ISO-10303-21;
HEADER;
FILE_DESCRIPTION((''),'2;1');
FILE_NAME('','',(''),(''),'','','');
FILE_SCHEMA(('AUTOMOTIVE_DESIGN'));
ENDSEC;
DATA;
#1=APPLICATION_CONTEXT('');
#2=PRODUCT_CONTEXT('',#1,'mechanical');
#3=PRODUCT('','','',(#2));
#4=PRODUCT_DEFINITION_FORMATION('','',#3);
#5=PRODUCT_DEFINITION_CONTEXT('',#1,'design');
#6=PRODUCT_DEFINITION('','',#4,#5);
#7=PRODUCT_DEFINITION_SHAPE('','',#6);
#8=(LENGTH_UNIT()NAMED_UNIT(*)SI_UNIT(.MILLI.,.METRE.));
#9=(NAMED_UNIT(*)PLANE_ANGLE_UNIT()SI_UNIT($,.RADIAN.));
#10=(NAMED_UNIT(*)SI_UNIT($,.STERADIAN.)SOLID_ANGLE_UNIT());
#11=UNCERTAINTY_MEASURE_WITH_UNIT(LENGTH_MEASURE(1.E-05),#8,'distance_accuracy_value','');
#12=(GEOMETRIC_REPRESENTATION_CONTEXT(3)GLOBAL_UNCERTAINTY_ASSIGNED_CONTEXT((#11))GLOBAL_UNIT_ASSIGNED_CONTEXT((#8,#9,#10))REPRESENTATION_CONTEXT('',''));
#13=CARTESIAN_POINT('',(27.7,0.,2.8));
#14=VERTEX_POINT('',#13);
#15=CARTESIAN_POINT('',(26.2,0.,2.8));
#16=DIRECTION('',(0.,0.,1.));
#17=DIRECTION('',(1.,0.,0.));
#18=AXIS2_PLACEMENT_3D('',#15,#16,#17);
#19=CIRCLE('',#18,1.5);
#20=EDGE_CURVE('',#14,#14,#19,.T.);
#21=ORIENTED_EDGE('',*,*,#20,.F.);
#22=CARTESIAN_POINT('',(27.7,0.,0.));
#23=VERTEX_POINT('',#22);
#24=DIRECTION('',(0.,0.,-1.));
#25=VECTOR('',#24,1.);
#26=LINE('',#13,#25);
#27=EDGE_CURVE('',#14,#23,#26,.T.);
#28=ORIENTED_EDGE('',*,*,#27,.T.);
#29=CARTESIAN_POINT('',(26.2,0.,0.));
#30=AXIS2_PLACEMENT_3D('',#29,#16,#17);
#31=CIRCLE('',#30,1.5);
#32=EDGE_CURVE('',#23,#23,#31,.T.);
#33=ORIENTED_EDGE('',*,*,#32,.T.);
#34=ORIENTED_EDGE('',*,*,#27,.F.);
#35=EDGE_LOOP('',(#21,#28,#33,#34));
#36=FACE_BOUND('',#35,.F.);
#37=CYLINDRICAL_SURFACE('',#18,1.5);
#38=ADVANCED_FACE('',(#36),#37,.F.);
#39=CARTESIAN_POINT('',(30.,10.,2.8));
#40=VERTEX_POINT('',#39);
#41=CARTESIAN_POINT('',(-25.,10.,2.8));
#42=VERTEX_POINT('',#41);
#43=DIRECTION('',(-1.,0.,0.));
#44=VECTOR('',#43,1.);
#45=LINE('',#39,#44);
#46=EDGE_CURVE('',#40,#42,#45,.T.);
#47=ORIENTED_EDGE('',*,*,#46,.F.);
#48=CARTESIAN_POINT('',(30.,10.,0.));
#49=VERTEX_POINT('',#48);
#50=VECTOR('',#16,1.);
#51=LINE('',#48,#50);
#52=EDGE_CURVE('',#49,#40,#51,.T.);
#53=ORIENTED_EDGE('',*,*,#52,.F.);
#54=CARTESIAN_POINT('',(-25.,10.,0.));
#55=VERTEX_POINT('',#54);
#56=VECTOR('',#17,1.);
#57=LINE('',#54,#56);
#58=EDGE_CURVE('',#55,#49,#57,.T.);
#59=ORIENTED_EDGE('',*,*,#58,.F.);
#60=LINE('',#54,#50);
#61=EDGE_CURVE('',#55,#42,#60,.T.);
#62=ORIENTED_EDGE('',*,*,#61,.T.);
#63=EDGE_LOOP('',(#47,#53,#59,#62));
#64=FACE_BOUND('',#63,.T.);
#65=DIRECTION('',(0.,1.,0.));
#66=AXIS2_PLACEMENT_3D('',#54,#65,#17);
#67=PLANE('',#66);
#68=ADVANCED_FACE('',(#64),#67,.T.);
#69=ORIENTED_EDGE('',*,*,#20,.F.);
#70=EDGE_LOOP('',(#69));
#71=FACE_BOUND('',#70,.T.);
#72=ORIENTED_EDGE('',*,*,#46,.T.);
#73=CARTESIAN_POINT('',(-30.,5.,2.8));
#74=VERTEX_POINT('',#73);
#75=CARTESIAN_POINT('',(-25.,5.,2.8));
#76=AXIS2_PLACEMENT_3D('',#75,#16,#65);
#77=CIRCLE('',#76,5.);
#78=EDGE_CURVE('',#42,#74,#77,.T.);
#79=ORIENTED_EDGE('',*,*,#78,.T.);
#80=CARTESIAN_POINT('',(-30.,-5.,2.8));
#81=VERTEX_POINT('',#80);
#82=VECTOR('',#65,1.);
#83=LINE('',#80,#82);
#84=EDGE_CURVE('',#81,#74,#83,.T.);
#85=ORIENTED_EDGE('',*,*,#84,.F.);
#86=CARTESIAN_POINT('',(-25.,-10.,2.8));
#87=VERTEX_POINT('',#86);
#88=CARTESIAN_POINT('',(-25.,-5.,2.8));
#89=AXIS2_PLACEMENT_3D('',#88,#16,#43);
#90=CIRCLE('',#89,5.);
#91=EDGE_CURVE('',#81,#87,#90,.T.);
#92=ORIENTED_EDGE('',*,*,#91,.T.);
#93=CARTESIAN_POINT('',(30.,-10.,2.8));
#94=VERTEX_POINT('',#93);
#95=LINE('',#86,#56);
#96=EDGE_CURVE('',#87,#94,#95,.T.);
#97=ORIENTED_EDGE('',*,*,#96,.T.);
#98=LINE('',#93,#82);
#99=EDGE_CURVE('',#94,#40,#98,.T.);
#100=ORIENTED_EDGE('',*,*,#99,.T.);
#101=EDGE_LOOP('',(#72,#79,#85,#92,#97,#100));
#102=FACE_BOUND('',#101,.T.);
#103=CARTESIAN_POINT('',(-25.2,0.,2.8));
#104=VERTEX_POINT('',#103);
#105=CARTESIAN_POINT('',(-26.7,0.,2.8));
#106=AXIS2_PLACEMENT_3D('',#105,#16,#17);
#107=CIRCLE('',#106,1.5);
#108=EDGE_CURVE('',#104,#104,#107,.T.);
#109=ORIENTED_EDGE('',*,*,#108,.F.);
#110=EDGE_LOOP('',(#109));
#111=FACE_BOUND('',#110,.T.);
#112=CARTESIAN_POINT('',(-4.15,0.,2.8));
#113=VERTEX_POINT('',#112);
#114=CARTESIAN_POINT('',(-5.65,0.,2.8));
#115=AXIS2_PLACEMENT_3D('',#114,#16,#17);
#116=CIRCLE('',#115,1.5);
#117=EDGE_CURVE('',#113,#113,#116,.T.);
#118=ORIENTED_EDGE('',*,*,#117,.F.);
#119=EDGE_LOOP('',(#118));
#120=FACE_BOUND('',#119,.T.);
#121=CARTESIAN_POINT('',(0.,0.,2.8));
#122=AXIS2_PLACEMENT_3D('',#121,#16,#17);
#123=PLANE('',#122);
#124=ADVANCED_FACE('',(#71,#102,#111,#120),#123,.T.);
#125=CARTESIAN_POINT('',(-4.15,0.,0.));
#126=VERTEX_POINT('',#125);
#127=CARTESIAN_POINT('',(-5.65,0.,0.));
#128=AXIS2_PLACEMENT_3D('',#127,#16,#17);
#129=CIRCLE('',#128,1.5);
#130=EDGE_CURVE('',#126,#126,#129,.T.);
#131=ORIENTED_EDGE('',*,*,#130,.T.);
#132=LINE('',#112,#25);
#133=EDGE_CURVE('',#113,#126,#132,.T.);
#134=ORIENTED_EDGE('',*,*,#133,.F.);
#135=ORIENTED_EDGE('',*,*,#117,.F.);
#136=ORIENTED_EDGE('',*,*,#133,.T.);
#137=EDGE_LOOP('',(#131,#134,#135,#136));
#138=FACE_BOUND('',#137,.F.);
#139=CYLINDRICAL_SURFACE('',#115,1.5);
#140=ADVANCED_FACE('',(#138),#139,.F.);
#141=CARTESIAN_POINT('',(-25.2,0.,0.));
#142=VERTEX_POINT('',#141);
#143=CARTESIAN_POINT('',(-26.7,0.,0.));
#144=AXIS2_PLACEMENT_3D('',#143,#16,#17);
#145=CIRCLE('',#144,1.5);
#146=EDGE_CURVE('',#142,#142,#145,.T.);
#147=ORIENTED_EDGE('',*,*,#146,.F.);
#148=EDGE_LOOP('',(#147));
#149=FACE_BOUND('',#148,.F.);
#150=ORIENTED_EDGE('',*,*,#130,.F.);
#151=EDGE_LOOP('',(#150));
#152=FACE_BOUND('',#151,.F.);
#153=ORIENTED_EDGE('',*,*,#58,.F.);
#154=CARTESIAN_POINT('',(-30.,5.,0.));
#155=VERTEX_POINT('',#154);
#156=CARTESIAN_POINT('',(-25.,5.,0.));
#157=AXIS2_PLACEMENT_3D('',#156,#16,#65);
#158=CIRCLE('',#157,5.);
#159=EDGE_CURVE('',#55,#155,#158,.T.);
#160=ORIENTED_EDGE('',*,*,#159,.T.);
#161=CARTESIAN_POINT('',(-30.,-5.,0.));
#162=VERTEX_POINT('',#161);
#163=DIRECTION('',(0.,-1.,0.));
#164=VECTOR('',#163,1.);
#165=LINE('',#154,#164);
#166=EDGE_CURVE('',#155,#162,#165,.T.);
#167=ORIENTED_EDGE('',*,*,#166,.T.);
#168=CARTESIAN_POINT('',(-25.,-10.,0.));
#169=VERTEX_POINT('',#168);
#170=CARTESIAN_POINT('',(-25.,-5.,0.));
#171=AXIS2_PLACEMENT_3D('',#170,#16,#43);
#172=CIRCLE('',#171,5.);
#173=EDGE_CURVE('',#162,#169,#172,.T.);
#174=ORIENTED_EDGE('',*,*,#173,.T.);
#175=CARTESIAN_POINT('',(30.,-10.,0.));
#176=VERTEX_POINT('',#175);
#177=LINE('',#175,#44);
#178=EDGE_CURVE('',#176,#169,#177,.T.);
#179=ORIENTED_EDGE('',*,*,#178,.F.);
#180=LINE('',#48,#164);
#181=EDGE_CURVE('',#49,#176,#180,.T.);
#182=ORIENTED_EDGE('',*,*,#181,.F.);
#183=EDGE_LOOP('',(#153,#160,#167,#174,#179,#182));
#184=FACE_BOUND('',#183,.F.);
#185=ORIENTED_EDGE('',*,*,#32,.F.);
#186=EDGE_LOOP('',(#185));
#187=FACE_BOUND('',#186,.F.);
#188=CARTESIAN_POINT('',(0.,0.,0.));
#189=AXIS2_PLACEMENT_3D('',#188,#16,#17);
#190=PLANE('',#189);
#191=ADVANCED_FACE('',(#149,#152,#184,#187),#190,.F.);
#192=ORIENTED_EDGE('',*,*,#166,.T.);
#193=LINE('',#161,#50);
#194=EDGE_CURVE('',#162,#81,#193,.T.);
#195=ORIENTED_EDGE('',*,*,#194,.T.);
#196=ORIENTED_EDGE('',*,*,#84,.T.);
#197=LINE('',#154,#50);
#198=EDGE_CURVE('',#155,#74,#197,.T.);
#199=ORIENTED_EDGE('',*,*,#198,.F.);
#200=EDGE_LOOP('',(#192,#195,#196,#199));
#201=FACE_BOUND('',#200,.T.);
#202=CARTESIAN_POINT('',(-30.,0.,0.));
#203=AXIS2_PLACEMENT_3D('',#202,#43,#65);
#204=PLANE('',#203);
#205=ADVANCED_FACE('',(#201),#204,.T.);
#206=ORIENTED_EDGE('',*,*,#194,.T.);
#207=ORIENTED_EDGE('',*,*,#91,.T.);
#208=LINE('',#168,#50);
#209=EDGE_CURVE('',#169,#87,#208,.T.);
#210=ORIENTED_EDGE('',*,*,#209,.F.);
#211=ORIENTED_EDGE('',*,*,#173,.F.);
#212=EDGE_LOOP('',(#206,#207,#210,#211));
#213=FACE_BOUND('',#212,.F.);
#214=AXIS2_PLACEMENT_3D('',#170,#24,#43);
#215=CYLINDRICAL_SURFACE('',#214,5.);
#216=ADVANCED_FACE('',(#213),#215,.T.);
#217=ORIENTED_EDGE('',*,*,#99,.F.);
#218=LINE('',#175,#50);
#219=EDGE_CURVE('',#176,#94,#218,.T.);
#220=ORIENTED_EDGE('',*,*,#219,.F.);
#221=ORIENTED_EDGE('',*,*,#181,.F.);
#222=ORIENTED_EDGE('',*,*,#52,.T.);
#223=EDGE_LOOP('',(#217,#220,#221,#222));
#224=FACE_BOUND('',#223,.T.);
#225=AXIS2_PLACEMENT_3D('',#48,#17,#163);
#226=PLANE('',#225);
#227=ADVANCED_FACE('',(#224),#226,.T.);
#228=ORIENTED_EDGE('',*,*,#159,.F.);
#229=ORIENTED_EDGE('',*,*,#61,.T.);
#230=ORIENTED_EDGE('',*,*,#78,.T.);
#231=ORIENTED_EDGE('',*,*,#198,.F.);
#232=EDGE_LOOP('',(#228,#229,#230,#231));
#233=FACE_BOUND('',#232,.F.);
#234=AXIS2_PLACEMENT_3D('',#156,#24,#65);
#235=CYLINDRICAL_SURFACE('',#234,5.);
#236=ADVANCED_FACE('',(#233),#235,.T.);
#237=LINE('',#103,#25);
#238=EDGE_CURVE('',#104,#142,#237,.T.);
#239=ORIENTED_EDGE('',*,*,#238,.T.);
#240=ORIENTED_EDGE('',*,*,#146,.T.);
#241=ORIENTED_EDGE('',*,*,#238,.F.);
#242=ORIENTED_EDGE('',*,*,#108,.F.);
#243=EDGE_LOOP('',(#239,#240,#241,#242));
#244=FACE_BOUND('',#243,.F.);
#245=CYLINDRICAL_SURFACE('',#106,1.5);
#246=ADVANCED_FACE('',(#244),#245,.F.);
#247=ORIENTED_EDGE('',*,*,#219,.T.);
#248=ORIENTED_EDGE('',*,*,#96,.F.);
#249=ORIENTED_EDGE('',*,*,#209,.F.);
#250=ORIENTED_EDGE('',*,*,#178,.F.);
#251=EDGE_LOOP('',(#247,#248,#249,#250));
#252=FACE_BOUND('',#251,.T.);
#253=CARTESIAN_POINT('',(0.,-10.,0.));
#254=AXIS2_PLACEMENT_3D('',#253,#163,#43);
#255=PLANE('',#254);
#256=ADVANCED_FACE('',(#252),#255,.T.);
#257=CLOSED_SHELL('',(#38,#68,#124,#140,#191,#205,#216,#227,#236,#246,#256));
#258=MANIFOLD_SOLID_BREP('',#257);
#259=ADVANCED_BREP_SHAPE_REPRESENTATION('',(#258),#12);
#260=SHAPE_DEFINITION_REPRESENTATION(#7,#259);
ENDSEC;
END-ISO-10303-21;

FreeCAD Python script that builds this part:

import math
import FreeCAD as App
import Part
import Sketcher

V = App.Vector

doc = App.newDocument("Part")
body = doc.addObject("PartDesign::Body", "Body")

sketch1 = body.newObject("Sketcher::SketchObject", "Sketch")
sketch1.AttachmentSupport = (doc.getObject("XY_Plane"), [""])
sketch1.MapMode = "FlatFace"
sketch1.addGeometry([
    Part.LineSegment(V(-30, 5, 0), V(-30, -5, 0)),
    Part.ArcOfCircle(Part.Circle(V(-25, -5, 0), V(0, 0, 1), 5), math.radians(180), math.radians(270)),
    Part.LineSegment(V(-25, -10, 0), V(30, -10, 0)),
    Part.LineSegment(V(30, -10, 0), V(30, 10, 0)),
    Part.LineSegment(V(30, 10, 0), V(-25, 10, 0)),
    Part.ArcOfCircle(Part.Circle(V(-25, 5, 0), V(0, 0, 1), 5), math.radians(90), math.radians(180)),
], False)
sketch1.addConstraint([
    Sketcher.Constraint("Tangent", 0, 2, 1, 1),
    Sketcher.Constraint("Tangent", 1, 2, 2, 1),
    Sketcher.Constraint("Coincident", 2, 2, 3, 1),
    Sketcher.Constraint("Coincident", 3, 2, 4, 1),
    Sketcher.Constraint("Tangent", 4, 2, 5, 1),
    Sketcher.Constraint("Tangent", 5, 2, 0, 1),
    Sketcher.Constraint("Vertical", 0),
    Sketcher.Constraint("Horizontal", 2),
    Sketcher.Constraint("Vertical", 3),
    Sketcher.Constraint("Horizontal", 4),
    Sketcher.Constraint("Equal", 1, 5),
    Sketcher.Constraint("Radius", 1, 5.0),
    Sketcher.Constraint("DistanceY", 0, 2, 0, 1, 10.0),
    Sketcher.Constraint("DistanceY", 1, 3, -1, 1, 5.0),
    Sketcher.Constraint("DistanceX", 0, 2, -1, 1, 30.0),
    Sketcher.Constraint("DistanceX", -1, 1, 2, 2, 30.0),
])
pad1 = body.newObject("PartDesign::Pad", "Pad")
pad1.Profile = sketch1
pad1.Length = 2.8

sketch2 = body.newObject("Sketcher::SketchObject", "Sketch001")
sketch2.AttachmentSupport = (doc.getObject("XY_Plane"), [""])
sketch2.MapMode = "FlatFace"
sketch2.AttachmentOffset = App.Placement(V(0, 0, 2.8), App.Rotation())
sketch2.addGeometry([
    Part.Circle(V(-26.7, 0, 0), V(0, 0, 1), 1.5),
    Part.Circle(V(26.2, 0, 0), V(0, 0, 1), 1.5),
    Part.Circle(V(-5.7, 0, 0), V(0, 0, 1), 1.5),
], False)
sketch2.addConstraint([
    Sketcher.Constraint("Equal", 0, 1),
    Sketcher.Constraint("Equal", 1, 2),
    Sketcher.Constraint("PointOnObject", 0, 3, -1),
    Sketcher.Constraint("PointOnObject", 1, 3, -1),
    Sketcher.Constraint("PointOnObject", 2, 3, -1),
    Sketcher.Constraint("Diameter", 0, 3.0),
    Sketcher.Constraint("DistanceX", 0, 3, -1, 1, 26.7),
    Sketcher.Constraint("DistanceX", -1, 1, 1, 3, 26.2),
    Sketcher.Constraint("DistanceX", 2, 3, -1, 1, 5.65),
])
pocket1 = body.newObject("PartDesign::Pocket", "Pocket")
pocket1.Profile = sketch2
pocket1.Length = 10

doc.recompute()
